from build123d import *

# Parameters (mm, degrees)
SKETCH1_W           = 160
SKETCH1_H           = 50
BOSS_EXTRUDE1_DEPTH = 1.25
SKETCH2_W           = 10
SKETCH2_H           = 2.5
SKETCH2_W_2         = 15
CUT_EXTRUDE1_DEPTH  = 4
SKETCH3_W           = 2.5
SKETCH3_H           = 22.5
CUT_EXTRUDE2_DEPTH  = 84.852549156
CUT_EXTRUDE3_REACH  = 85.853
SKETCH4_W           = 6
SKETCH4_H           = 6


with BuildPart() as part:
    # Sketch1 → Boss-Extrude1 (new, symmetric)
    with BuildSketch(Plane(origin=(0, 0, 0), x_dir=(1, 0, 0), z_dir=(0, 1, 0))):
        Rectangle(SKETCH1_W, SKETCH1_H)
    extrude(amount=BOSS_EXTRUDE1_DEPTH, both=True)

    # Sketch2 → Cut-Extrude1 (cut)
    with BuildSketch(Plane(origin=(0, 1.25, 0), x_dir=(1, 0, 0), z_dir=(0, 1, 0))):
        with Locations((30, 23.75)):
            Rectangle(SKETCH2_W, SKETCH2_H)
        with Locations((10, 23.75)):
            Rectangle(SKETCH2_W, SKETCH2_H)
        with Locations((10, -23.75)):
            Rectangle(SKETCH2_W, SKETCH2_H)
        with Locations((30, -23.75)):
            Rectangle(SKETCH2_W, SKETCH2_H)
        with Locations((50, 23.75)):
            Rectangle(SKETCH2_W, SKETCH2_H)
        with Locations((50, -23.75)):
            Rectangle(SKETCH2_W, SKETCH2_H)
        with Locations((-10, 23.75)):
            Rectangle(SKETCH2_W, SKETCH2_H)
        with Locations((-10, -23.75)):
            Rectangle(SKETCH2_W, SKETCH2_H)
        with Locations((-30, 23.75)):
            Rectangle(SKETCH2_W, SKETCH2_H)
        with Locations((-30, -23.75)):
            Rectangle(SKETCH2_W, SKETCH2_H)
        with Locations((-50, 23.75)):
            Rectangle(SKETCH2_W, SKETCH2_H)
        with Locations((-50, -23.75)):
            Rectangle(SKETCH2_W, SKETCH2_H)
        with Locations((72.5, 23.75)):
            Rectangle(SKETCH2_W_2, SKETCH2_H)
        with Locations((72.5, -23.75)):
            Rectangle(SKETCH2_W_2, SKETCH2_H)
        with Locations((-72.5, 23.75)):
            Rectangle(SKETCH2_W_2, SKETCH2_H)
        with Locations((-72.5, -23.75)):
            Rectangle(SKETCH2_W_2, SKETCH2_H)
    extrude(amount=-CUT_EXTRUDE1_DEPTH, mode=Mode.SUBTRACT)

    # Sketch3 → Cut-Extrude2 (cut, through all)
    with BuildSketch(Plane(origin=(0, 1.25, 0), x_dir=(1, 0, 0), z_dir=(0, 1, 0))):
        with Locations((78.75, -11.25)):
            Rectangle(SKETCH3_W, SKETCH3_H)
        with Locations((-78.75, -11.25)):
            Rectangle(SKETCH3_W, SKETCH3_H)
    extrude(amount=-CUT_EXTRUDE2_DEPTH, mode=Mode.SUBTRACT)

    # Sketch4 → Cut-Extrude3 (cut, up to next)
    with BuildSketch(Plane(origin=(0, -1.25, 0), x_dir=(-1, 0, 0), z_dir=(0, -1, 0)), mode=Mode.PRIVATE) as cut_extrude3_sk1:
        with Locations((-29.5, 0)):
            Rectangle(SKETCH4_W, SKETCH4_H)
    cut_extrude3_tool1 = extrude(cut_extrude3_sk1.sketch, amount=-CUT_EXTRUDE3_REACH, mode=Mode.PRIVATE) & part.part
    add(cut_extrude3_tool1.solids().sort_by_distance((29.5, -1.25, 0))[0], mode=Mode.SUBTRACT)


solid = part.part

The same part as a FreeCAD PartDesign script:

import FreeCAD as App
import Part
import Sketcher
Q = App.Units.Quantity

doc = App.newDocument("Part")
body = doc.addObject("PartDesign::Body", "Body")

sketch1 = body.newObject("Sketcher::SketchObject", "Sketch")
sketch1.AttachmentSupport = (doc.getObject("XZ_Plane"), [""])
sketch1.MapMode = "FlatFace"
sketch1.addGeometry([
    Part.LineSegment(App.Vector(-80, -25, 0), App.Vector(-80, 25, 0)),
    Part.LineSegment(App.Vector(-80, 25, 0), App.Vector(80, 25, 0)),
    Part.LineSegment(App.Vector(80, 25, 0), App.Vector(80, -25, 0)),
    Part.LineSegment(App.Vector(80, -25, 0), App.Vector(-80, -25, 0)),
], False)
sketch1.addConstraint([
    Sketcher.Constraint("Coincident", 0, 2, 1, 1),
    Sketcher.Constraint("Coincident", 1, 2, 2, 1),
    Sketcher.Constraint("Coincident", 2, 2, 3, 1),
    Sketcher.Constraint("Coincident", 3, 2, 0, 1),
    Sketcher.Constraint("Vertical", 0),
    Sketcher.Constraint("Horizontal", 1),
    Sketcher.Constraint("Vertical", 2),
    Sketcher.Constraint("Horizontal", 3),
    Sketcher.Constraint("Symmetric", 0, 2, 2, 2, -1, 1),
    Sketcher.Constraint("DistanceX", 1, 1, 1, 2, Q("160 mm")),
    Sketcher.Constraint("DistanceY", 0, 1, 0, 2, Q("50 mm")),
])
pad1 = body.newObject("PartDesign::Pad", "Pad")
pad1.Profile = sketch1
pad1.Length = 2.5
pad1.Midplane = True

sketch2 = body.newObject("Sketcher::SketchObject", "Sketch001")
sketch2.AttachmentSupport = (doc.getObject("XZ_Plane"), [""])
sketch2.MapMode = "FlatFace"
sketch2.AttachmentOffset = App.Placement(App.Vector(0, 0, -1.25), App.Rotation())
sketch2.addGeometry([
    Part.LineSegment(App.Vector(25, -25, 0), App.Vector(25, -22.5, 0)),
    Part.LineSegment(App.Vector(25, -22.5, 0), App.Vector(35, -22.5, 0)),
    Part.LineSegment(App.Vector(35, -22.5, 0), App.Vector(35, -25, 0)),
    Part.LineSegment(App.Vector(35, -25, 0), App.Vector(25, -25, 0)),
    Part.LineSegment(App.Vector(5, -25, 0), App.Vector(5, -22.5, 0)),
    Part.LineSegment(App.Vector(5, -22.5, 0), App.Vector(15, -22.5, 0)),
    Part.LineSegment(App.Vector(15, -22.5, 0), App.Vector(15, -25, 0)),
    Part.LineSegment(App.Vector(15, -25, 0), App.Vector(5, -25, 0)),
    Part.LineSegment(App.Vector(5, 22.5, 0), App.Vector(5, 25, 0)),
    Part.LineSegment(App.Vector(5, 25, 0), App.Vector(15, 25, 0)),
    Part.LineSegment(App.Vector(15, 25, 0), App.Vector(15, 22.5, 0)),
    Part.LineSegment(App.Vector(15, 22.5, 0), App.Vector(5, 22.5, 0)),
    Part.LineSegment(App.Vector(25, 22.5, 0), App.Vector(25, 25, 0)),
    Part.LineSegment(App.Vector(25, 25, 0), App.Vector(35, 25, 0)),
    Part.LineSegment(App.Vector(35, 25, 0), App.Vector(35, 22.5, 0)),
    Part.LineSegment(App.Vector(35, 22.5, 0), App.Vector(25, 22.5, 0)),
    Part.LineSegment(App.Vector(45, -25, 0), App.Vector(45, -22.5, 0)),
    Part.LineSegment(App.Vector(45, -22.5, 0), App.Vector(55, -22.5, 0)),
    Part.LineSegment(App.Vector(55, -22.5, 0), App.Vector(55, -25, 0)),
    Part.LineSegment(App.Vector(55, -25, 0), App.Vector(45, -25, 0)),
    Part.LineSegment(App.Vector(45, 22.5, 0), App.Vector(45, 25, 0)),
    Part.LineSegment(App.Vector(45, 25, 0), App.Vector(55, 25, 0)),
    Part.LineSegment(App.Vector(55, 25, 0), App.Vector(55, 22.5, 0)),
    Part.LineSegment(App.Vector(55, 22.5, 0), App.Vector(45, 22.5, 0)),
    Part.LineSegment(App.Vector(-15, -25, 0), App.Vector(-15, -22.5, 0)),
    Part.LineSegment(App.Vector(-15, -22.5, 0), App.Vector(-5, -22.5, 0)),
    Part.LineSegment(App.Vector(-5, -22.5, 0), App.Vector(-5, -25, 0)),
    Part.LineSegment(App.Vector(-5, -25, 0), App.Vector(-15, -25, 0)),
    Part.LineSegment(App.Vector(-15, 22.5, 0), App.Vector(-15, 25, 0)),
    Part.LineSegment(App.Vector(-15, 25, 0), App.Vector(-5, 25, 0)),
    Part.LineSegment(App.Vector(-5, 25, 0), App.Vector(-5, 22.5, 0)),
    Part.LineSegment(App.Vector(-5, 22.5, 0), App.Vector(-15, 22.5, 0)),
    Part.LineSegment(App.Vector(-35, -25, 0), App.Vector(-35, -22.5, 0)),
    Part.LineSegment(App.Vector(-35, -22.5, 0), App.Vector(-25, -22.5, 0)),
    Part.LineSegment(App.Vector(-25, -22.5, 0), App.Vector(-25, -25, 0)),
    Part.LineSegment(App.Vector(-25, -25, 0), App.Vector(-35, -25, 0)),
    Part.LineSegment(App.Vector(-35, 22.5, 0), App.Vector(-35, 25, 0)),
    Part.LineSegment(App.Vector(-35, 25, 0), App.Vector(-25, 25, 0)),
    Part.LineSegment(App.Vector(-25, 25, 0), App.Vector(-25, 22.5, 0)),
    Part.LineSegment(App.Vector(-25, 22.5, 0), App.Vector(-35, 22.5, 0)),
    Part.LineSegment(App.Vector(-55, -25, 0), App.Vector(-55, -22.5, 0)),
    Part.LineSegment(App.Vector(-55, -22.5, 0), App.Vector(-45, -22.5, 0)),
    Part.LineSegment(App.Vector(-45, -22.5, 0), App.Vector(-45, -25, 0)),
    Part.LineSegment(App.Vector(-45, -25, 0), App.Vector(-55, -25, 0)),
    Part.LineSegment(App.Vector(-55, 22.5, 0), App.Vector(-55, 25, 0)),
    Part.LineSegment(App.Vector(-55, 25, 0), App.Vector(-45, 25, 0)),
    Part.LineSegment(App.Vector(-45, 25, 0), App.Vector(-45, 22.5, 0)),
    Part.LineSegment(App.Vector(-45, 22.5, 0), App.Vector(-55, 22.5, 0)),
    Part.LineSegment(App.Vector(65, -25, 0), App.Vector(65, -22.5, 0)),
    Part.LineSegment(App.Vector(65, -22.5, 0), App.Vector(80, -22.5, 0)),
    Part.LineSegment(App.Vector(80, -22.5, 0), App.Vector(80, -25, 0)),
    Part.LineSegment(App.Vector(80, -25, 0), App.Vector(65, -25, 0)),
    Part.LineSegment(App.Vector(65, 22.5, 0), App.Vector(65, 25, 0)),
    Part.LineSegment(App.Vector(65, 25, 0), App.Vector(80, 25, 0)),
    Part.LineSegment(App.Vector(80, 25, 0), App.Vector(80, 22.5, 0)),
    Part.LineSegment(App.Vector(80, 22.5, 0), App.Vector(65, 22.5, 0)),
    Part.LineSegment(App.Vector(-80, -25, 0), App.Vector(-80, -22.5, 0)),
    Part.LineSegment(App.Vector(-80, -22.5, 0), App.Vector(-65, -22.5, 0)),
    Part.LineSegment(App.Vector(-65, -22.5, 0), App.Vector(-65, -25, 0)),
    Part.LineSegment(App.Vector(-65, -25, 0), App.Vector(-80, -25, 0)),
    Part.LineSegment(App.Vector(-80, 22.5, 0), App.Vector(-80, 25, 0)),
    Part.LineSegment(App.Vector(-80, 25, 0), App.Vector(-65, 25, 0)),
    Part.LineSegment(App.Vector(-65, 25, 0), App.Vector(-65, 22.5, 0)),
    Part.LineSegment(App.Vector(-65, 22.5, 0), App.Vector(-80, 22.5, 0)),
], False)
sketch2.addConstraint([
    Sketcher.Constraint("Coincident", 0, 2, 1, 1),
    Sketcher.Constraint("Coincident", 1, 2, 2, 1),
    Sketcher.Constraint("Coincident", 2, 2, 3, 1),
    Sketcher.Constraint("Coincident", 3, 2, 0, 1),
    Sketcher.Constraint("Coincident", 4, 2, 5, 1),
    Sketcher.Constraint("Coincident", 5, 2, 6, 1),
    Sketcher.Constraint("Coincident", 6, 2, 7, 1),
    Sketcher.Constraint("Coincident", 7, 2, 4, 1),
    Sketcher.Constraint("Coincident", 8, 2, 9, 1),
    Sketcher.Constraint("Coincident", 9, 2, 10, 1),
    Sketcher.Constraint("Coincident", 10, 2, 11, 1),
    Sketcher.Constraint("Coincident", 11, 2, 8, 1),
    Sketcher.Constraint("Coincident", 12, 2, 13, 1),
    Sketcher.Constraint("Coincident", 13, 2, 14, 1),
    Sketcher.Constraint("Coincident", 14, 2, 15, 1),
    Sketcher.Constraint("Coincident", 15, 2, 12, 1),
    Sketcher.Constraint("Coincident", 16, 2, 17, 1),
    Sketcher.Constraint("Coincident", 17, 2, 18, 1),
    Sketcher.Constraint("Coincident", 18, 2, 19, 1),
    Sketcher.Constraint("Coincident", 19, 2, 16, 1),
    Sketcher.Constraint("Coincident", 20, 2, 21, 1),
    Sketcher.Constraint("Coincident", 21, 2, 22, 1),
    Sketcher.Constraint("Coincident", 22, 2, 23, 1),
    Sketcher.Constraint("Coincident", 23, 2, 20, 1),
    Sketcher.Constraint("Coincident", 24, 2, 25, 1),
    Sketcher.Constraint("Coincident", 25, 2, 26, 1),
    Sketcher.Constraint("Coincident", 26, 2, 27, 1),
    Sketcher.Constraint("Coincident", 27, 2, 24, 1),
    Sketcher.Constraint("Coincident", 28, 2, 29, 1),
    Sketcher.Constraint("Coincident", 29, 2, 30, 1),
    Sketcher.Constraint("Coincident", 30, 2, 31, 1),
    Sketcher.Constraint("Coincident", 31, 2, 28, 1),
    Sketcher.Constraint("Coincident", 32, 2, 33, 1),
    Sketcher.Constraint("Coincident", 33, 2, 34, 1),
    Sketcher.Constraint("Coincident", 34, 2, 35, 1),
    Sketcher.Constraint("Coincident", 35, 2, 32, 1),
    Sketcher.Constraint("Coincident", 36, 2, 37, 1),
    Sketcher.Constraint("Coincident", 37, 2, 38, 1),
    Sketcher.Constraint("Coincident", 38, 2, 39, 1),
    Sketcher.Constraint("Coincident", 39, 2, 36, 1),
    Sketcher.Constraint("Coincident", 40, 2, 41, 1),
    Sketcher.Constraint("Coincident", 41, 2, 42, 1),
    Sketcher.Constraint("Coincident", 42, 2, 43, 1),
    Sketcher.Constraint("Coincident", 43, 2, 40, 1),
    Sketcher.Constraint("Coincident", 44, 2, 45, 1),
    Sketcher.Constraint("Coincident", 45, 2, 46, 1),
    Sketcher.Constraint("Coincident", 46, 2, 47, 1),
    Sketcher.Constraint("Coincident", 47, 2, 44, 1),
    Sketcher.Constraint("Coincident", 48, 2, 49, 1),
    Sketcher.Constraint("Coincident", 49, 2, 50, 1),
    Sketcher.Constraint("Coincident", 50, 2, 51, 1),
    Sketcher.Constraint("Coincident", 51, 2, 48, 1),
    Sketcher.Constraint("Coincident", 52, 2, 53, 1),
    Sketcher.Constraint("Coincident", 53, 2, 54, 1),
    Sketcher.Constraint("Coincident", 54, 2, 55, 1),
    Sketcher.Constraint("Coincident", 55, 2, 52, 1),
    Sketcher.Constraint("Coincident", 56, 2, 57, 1),
    Sketcher.Constraint("Coincident", 57, 2, 58, 1),
    Sketcher.Constraint("Coincident", 58, 2, 59, 1),
    Sketcher.Constraint("Coincident", 59, 2, 56, 1),
    Sketcher.Constraint("Coincident", 60, 2, 61, 1),
    Sketcher.Constraint("Coincident", 61, 2, 62, 1),
    Sketcher.Constraint("Coincident", 62, 2, 63, 1),
    Sketcher.Constraint("Coincident", 63, 2, 60, 1),
    Sketcher.Constraint("Vertical", 0),
    Sketcher.Constraint("Horizontal", 1),
    Sketcher.Constraint("Vertical", 2),
    Sketcher.Constraint("Horizontal", 3),
    Sketcher.Constraint("Vertical", 4),
    Sketcher.Constraint("Horizontal", 5),
    Sketcher.Constraint("Vertical", 6),
    Sketcher.Constraint("Horizontal", 7),
    Sketcher.Constraint("Vertical", 8),
    Sketcher.Constraint("Horizontal", 9),
    Sketcher.Constraint("Vertical", 10),
    Sketcher.Constraint("Horizontal", 11),
    Sketcher.Constraint("Vertical", 12),
    Sketcher.Constraint("Horizontal", 13),
    Sketcher.Constraint("Vertical", 14),
    Sketcher.Constraint("Horizontal", 15),
    Sketcher.Constraint("Vertical", 16),
    Sketcher.Constraint("Horizontal", 17),
    Sketcher.Constraint("Vertical", 18),
    Sketcher.Constraint("Horizontal", 19),
    Sketcher.Constraint("Vertical", 20),
    Sketcher.Constraint("Horizontal", 21),
    Sketcher.Constraint("Vertical", 22),
    Sketcher.Constraint("Horizontal", 23),
    Sketcher.Constraint("Vertical", 24),
    Sketcher.Constraint("Horizontal", 25),
    Sketcher.Constraint("Vertical", 26),
    Sketcher.Constraint("Horizontal", 27),
    Sketcher.Constraint("Vertical", 28),
    Sketcher.Constraint("Horizontal", 29),
    Sketcher.Constraint("Vertical", 30),
    Sketcher.Constraint("Horizontal", 31),
    Sketcher.Constraint("Vertical", 32),
    Sketcher.Constraint("Horizontal", 33),
    Sketcher.Constraint("Vertical", 34),
    Sketcher.Constraint("Horizontal", 35),
    Sketcher.Constraint("Vertical", 36),
    Sketcher.Constraint("Horizontal", 37),
    Sketcher.Constraint("Vertical", 38),
    Sketcher.Constraint("Horizontal", 39),
    Sketcher.Constraint("Vertical", 40),
    Sketcher.Constraint("Horizontal", 41),
    Sketcher.Constraint("Vertical", 42),
    Sketcher.Constraint("Horizontal", 43),
    Sketcher.Constraint("Vertical", 44),
    Sketcher.Constraint("Horizontal", 45),
    Sketcher.Constraint("Vertical", 46),
    Sketcher.Constraint("Horizontal", 47),
    Sketcher.Constraint("Vertical", 48),
    Sketcher.Constraint("Horizontal", 49),
    Sketcher.Constraint("Vertical", 50),
    Sketcher.Constraint("Horizontal", 51),
    Sketcher.Constraint("Vertical", 52),
    Sketcher.Constraint("Horizontal", 53),
    Sketcher.Constraint("Vertical", 54),
    Sketcher.Constraint("Horizontal", 55),
    Sketcher.Constraint("Vertical", 56),
    Sketcher.Constraint("Horizontal", 57),
    Sketcher.Constraint("Vertical", 58),
    Sketcher.Constraint("Horizontal", 59),
    Sketcher.Constraint("Vertical", 60),
    Sketcher.Constraint("Horizontal", 61),
    Sketcher.Constraint("Vertical", 62),
    Sketcher.Constraint("Horizontal", 63),
    Sketcher.Constraint("Symmetric", 10, 2, 24, 2, -1, 1),
    Sketcher.Constraint("Symmetric", 8, 2, 26, 2, -1, 1),
    Sketcher.Constraint("Symmetric", 6, 2, 28, 2, -1, 1),
    Sketcher.Constraint("Symmetric", 4, 2, 30, 2, -1, 1),
    Sketcher.Constraint("Symmetric", 14, 2, 32, 2, -1, 1),
    Sketcher.Constraint("Symmetric", 12, 2, 34, 2, -1, 1),
    Sketcher.Constraint("Symmetric", 2, 2, 36, 2, -1, 1),
    Sketcher.Constraint("Symmetric", 0, 2, 38, 2, -1, 1),
    Sketcher.Constraint("Symmetric", 22, 2, 40, 2, -1, 1),
    Sketcher.Constraint("Symmetric", 20, 2, 42, 2, -1, 1),
    Sketcher.Constraint("Symmetric", 18, 2, 44, 2, -1, 1),
    Sketcher.Constraint("Symmetric", 16, 2, 46, 2, -1, 1),
    Sketcher.Constraint("Symmetric", 54, 2, 56, 2, -1, 1),
    Sketcher.Constraint("Symmetric", 52, 2, 58, 2, -1, 1),
    Sketcher.Constraint("Symmetric", 50, 2, 60, 2, -1, 1),
    Sketcher.Constraint("Symmetric", 48, 2, 62, 2, -1, 1),
    Sketcher.Constraint("Symmetric", 5, 2, 24, 2, -2),
    Sketcher.Constraint("Symmetric", 7, 2, 26, 2, -2),
    Sketcher.Constraint("Symmetric", 1, 2, 32, 2, -2),
    Sketcher.Constraint("Symmetric", 3, 2, 34, 2, -2),
    Sketcher.Constraint("Symmetric", 17, 2, 40, 2, -2),
    Sketcher.Constraint("Symmetric", 19, 2, 42, 2, -2),
    Sketcher.Constraint("Symmetric", 49, 2, 56, 2, -2),
    Sketcher.Constraint("Symmetric", 51, 2, 58, 2, -2),
    Sketcher.Constraint("Horizontal", 1, 2, 4, 2),
    Sketcher.Constraint("Horizontal", 3, 2, 6, 2),
    Sketcher.Constraint("Horizontal", 5, 2, 16, 2),
    Sketcher.Constraint("Horizontal", 7, 2, 18, 2),
    Sketcher.Constraint("Horizontal", 41, 2, 48, 2),
    Sketcher.Constraint("Horizontal", 43, 2, 50, 2),
    Sketcher.Constraint("Equal", 3, 5),
    Sketcher.Constraint("Equal", 15, 17),
    Sketcher.Constraint("DistanceX", 1, 1, 1, 2, Q("10 mm")),
    Sketcher.Constraint("DistanceX", 49, 1, 49, 2, Q("15 mm")),
    Sketcher.Constraint("DistanceY", 0, 1, 0, 2, Q("2.5 mm")),
    Sketcher.Constraint("DistanceX", -1, 1, 0, 2, Q("25 mm")),
    Sketcher.Constraint("DistanceY", 2, 2, -1, 1, Q("25 mm")),
    Sketcher.Constraint("DistanceX", -1, 1, 4, 2, Q("5 mm")),
    Sketcher.Constraint("DistanceX", -1, 1, 16, 2, Q("45 mm")),
    Sketcher.Constraint("DistanceX", -1, 1, 48, 2, Q("65 mm")),
])
pocket1 = body.newObject("PartDesign::Pocket", "Pocket")
pocket1.Profile = sketch2
pocket1.Length = 4
pocket1.Reversed = True

sketch3 = body.newObject("Sketcher::SketchObject", "Sketch002")
sketch3.AttachmentSupport = (doc.getObject("XZ_Plane"), [""])
sketch3.MapMode = "FlatFace"
sketch3.AttachmentOffset = App.Placement(App.Vector(0, 0, -1.25), App.Rotation())
sketch3.addGeometry([
    Part.LineSegment(App.Vector(77.5, 0, 0), App.Vector(77.5, 22.5, 0)),
    Part.LineSegment(App.Vector(77.5, 22.5, 0), App.Vector(80, 22.5, 0)),
    Part.LineSegment(App.Vector(80, 22.5, 0), App.Vector(80, 0, 0)),
    Part.LineSegment(App.Vector(80, 0, 0), App.Vector(77.5, 0, 0)),
    Part.LineSegment(App.Vector(-80, 0, 0), App.Vector(-80, 22.5, 0)),
    Part.LineSegment(App.Vector(-80, 22.5, 0), App.Vector(-77.5, 22.5, 0)),
    Part.LineSegment(App.Vector(-77.5, 22.5, 0), App.Vector(-77.5, 0, 0)),
    Part.LineSegment(App.Vector(-77.5, 0, 0), App.Vector(-80, 0, 0)),
], False)
sketch3.addConstraint([
    Sketcher.Constraint("Coincident", 0, 2, 1, 1),
    Sketcher.Constraint("Coincident", 1, 2, 2, 1),
    Sketcher.Constraint("Coincident", 2, 2, 3, 1),
    Sketcher.Constraint("Coincident", 3, 2, 0, 1),
    Sketcher.Constraint("Coincident", 4, 2, 5, 1),
    Sketcher.Constraint("Coincident", 5, 2, 6, 1),
    Sketcher.Constraint("Coincident", 6, 2, 7, 1),
    Sketcher.Constraint("Coincident", 7, 2, 4, 1),
    Sketcher.Constraint("Vertical", 0),
    Sketcher.Constraint("Horizontal", 1),
    Sketcher.Constraint("Vertical", 2),
    Sketcher.Constraint("Horizontal", 3),
    Sketcher.Constraint("Vertical", 4),
    Sketcher.Constraint("Horizontal", 5),
    Sketcher.Constraint("Vertical", 6),
    Sketcher.Constraint("Horizontal", 7),
    Sketcher.Constraint("Symmetric", 3, 2, 6, 2, -1, 1),
    Sketcher.Constraint("Symmetric", 1, 2, 4, 2, -2),
    Sketcher.Constraint("PointOnObject", 2, 2, -1),
    Sketcher.Constraint("DistanceX", 1, 1, 1, 2, Q("2.5 mm")),
    Sketcher.Constraint("DistanceY", 0, 1, 0, 2, Q("22.5 mm")),
    Sketcher.Constraint("DistanceX", -1, 1, 1, 2, Q("80 mm")),
])
pocket2 = body.newObject("PartDesign::Pocket", "Pocket001")
pocket2.Profile = sketch3
pocket2.Type = "ThroughAll"
pocket2.Reversed = True

sketch4 = body.newObject("Sketcher::SketchObject", "Sketch003")
sketch4.AttachmentSupport = (doc.getObject("XZ_Plane"), [""])
sketch4.MapMode = "FlatFace"
sketch4.AttachmentOffset = App.Placement(App.Vector(0, 0, 1.25), App.Rotation())
sketch4.addGeometry([
    Part.LineSegment(App.Vector(32, -3, 0), App.Vector(32, 3, 0)),
    Part.LineSegment(App.Vector(32, 3, 0), App.Vector(26, 3, 0)),
    Part.LineSegment(App.Vector(26, 3, 0), App.Vector(26, -3, 0)),
    Part.LineSegment(App.Vector(26, -3, 0), App.Vector(32, -3, 0)),
], False)
sketch4.addConstraint([
    Sketcher.Constraint("Coincident", 0, 2, 1, 1),
    Sketcher.Constraint("Coincident", 1, 2, 2, 1),
    Sketcher.Constraint("Coincident", 2, 2, 3, 1),
    Sketcher.Constraint("Coincident", 3, 2, 0, 1),
    Sketcher.Constraint("Vertical", 0),
    Sketcher.Constraint("Horizontal", 1),
    Sketcher.Constraint("Vertical", 2),
    Sketcher.Constraint("Horizontal", 3),
    Sketcher.Constraint("Equal", 3, 0),
    Sketcher.Constraint("DistanceX", 1, 2, 1, 1, Q("6 mm")),
    Sketcher.Constraint("DistanceY", -1, 1, 0, 2, Q("3 mm")),
    Sketcher.Constraint("DistanceX", -1, 1, 0, 2, Q("32.5 mm")),
])
pocket3 = body.newObject("PartDesign::Pocket", "Pocket002")
pocket3.Profile = sketch4
pocket3.Type = "UpToFirst"

doc.recompute()
